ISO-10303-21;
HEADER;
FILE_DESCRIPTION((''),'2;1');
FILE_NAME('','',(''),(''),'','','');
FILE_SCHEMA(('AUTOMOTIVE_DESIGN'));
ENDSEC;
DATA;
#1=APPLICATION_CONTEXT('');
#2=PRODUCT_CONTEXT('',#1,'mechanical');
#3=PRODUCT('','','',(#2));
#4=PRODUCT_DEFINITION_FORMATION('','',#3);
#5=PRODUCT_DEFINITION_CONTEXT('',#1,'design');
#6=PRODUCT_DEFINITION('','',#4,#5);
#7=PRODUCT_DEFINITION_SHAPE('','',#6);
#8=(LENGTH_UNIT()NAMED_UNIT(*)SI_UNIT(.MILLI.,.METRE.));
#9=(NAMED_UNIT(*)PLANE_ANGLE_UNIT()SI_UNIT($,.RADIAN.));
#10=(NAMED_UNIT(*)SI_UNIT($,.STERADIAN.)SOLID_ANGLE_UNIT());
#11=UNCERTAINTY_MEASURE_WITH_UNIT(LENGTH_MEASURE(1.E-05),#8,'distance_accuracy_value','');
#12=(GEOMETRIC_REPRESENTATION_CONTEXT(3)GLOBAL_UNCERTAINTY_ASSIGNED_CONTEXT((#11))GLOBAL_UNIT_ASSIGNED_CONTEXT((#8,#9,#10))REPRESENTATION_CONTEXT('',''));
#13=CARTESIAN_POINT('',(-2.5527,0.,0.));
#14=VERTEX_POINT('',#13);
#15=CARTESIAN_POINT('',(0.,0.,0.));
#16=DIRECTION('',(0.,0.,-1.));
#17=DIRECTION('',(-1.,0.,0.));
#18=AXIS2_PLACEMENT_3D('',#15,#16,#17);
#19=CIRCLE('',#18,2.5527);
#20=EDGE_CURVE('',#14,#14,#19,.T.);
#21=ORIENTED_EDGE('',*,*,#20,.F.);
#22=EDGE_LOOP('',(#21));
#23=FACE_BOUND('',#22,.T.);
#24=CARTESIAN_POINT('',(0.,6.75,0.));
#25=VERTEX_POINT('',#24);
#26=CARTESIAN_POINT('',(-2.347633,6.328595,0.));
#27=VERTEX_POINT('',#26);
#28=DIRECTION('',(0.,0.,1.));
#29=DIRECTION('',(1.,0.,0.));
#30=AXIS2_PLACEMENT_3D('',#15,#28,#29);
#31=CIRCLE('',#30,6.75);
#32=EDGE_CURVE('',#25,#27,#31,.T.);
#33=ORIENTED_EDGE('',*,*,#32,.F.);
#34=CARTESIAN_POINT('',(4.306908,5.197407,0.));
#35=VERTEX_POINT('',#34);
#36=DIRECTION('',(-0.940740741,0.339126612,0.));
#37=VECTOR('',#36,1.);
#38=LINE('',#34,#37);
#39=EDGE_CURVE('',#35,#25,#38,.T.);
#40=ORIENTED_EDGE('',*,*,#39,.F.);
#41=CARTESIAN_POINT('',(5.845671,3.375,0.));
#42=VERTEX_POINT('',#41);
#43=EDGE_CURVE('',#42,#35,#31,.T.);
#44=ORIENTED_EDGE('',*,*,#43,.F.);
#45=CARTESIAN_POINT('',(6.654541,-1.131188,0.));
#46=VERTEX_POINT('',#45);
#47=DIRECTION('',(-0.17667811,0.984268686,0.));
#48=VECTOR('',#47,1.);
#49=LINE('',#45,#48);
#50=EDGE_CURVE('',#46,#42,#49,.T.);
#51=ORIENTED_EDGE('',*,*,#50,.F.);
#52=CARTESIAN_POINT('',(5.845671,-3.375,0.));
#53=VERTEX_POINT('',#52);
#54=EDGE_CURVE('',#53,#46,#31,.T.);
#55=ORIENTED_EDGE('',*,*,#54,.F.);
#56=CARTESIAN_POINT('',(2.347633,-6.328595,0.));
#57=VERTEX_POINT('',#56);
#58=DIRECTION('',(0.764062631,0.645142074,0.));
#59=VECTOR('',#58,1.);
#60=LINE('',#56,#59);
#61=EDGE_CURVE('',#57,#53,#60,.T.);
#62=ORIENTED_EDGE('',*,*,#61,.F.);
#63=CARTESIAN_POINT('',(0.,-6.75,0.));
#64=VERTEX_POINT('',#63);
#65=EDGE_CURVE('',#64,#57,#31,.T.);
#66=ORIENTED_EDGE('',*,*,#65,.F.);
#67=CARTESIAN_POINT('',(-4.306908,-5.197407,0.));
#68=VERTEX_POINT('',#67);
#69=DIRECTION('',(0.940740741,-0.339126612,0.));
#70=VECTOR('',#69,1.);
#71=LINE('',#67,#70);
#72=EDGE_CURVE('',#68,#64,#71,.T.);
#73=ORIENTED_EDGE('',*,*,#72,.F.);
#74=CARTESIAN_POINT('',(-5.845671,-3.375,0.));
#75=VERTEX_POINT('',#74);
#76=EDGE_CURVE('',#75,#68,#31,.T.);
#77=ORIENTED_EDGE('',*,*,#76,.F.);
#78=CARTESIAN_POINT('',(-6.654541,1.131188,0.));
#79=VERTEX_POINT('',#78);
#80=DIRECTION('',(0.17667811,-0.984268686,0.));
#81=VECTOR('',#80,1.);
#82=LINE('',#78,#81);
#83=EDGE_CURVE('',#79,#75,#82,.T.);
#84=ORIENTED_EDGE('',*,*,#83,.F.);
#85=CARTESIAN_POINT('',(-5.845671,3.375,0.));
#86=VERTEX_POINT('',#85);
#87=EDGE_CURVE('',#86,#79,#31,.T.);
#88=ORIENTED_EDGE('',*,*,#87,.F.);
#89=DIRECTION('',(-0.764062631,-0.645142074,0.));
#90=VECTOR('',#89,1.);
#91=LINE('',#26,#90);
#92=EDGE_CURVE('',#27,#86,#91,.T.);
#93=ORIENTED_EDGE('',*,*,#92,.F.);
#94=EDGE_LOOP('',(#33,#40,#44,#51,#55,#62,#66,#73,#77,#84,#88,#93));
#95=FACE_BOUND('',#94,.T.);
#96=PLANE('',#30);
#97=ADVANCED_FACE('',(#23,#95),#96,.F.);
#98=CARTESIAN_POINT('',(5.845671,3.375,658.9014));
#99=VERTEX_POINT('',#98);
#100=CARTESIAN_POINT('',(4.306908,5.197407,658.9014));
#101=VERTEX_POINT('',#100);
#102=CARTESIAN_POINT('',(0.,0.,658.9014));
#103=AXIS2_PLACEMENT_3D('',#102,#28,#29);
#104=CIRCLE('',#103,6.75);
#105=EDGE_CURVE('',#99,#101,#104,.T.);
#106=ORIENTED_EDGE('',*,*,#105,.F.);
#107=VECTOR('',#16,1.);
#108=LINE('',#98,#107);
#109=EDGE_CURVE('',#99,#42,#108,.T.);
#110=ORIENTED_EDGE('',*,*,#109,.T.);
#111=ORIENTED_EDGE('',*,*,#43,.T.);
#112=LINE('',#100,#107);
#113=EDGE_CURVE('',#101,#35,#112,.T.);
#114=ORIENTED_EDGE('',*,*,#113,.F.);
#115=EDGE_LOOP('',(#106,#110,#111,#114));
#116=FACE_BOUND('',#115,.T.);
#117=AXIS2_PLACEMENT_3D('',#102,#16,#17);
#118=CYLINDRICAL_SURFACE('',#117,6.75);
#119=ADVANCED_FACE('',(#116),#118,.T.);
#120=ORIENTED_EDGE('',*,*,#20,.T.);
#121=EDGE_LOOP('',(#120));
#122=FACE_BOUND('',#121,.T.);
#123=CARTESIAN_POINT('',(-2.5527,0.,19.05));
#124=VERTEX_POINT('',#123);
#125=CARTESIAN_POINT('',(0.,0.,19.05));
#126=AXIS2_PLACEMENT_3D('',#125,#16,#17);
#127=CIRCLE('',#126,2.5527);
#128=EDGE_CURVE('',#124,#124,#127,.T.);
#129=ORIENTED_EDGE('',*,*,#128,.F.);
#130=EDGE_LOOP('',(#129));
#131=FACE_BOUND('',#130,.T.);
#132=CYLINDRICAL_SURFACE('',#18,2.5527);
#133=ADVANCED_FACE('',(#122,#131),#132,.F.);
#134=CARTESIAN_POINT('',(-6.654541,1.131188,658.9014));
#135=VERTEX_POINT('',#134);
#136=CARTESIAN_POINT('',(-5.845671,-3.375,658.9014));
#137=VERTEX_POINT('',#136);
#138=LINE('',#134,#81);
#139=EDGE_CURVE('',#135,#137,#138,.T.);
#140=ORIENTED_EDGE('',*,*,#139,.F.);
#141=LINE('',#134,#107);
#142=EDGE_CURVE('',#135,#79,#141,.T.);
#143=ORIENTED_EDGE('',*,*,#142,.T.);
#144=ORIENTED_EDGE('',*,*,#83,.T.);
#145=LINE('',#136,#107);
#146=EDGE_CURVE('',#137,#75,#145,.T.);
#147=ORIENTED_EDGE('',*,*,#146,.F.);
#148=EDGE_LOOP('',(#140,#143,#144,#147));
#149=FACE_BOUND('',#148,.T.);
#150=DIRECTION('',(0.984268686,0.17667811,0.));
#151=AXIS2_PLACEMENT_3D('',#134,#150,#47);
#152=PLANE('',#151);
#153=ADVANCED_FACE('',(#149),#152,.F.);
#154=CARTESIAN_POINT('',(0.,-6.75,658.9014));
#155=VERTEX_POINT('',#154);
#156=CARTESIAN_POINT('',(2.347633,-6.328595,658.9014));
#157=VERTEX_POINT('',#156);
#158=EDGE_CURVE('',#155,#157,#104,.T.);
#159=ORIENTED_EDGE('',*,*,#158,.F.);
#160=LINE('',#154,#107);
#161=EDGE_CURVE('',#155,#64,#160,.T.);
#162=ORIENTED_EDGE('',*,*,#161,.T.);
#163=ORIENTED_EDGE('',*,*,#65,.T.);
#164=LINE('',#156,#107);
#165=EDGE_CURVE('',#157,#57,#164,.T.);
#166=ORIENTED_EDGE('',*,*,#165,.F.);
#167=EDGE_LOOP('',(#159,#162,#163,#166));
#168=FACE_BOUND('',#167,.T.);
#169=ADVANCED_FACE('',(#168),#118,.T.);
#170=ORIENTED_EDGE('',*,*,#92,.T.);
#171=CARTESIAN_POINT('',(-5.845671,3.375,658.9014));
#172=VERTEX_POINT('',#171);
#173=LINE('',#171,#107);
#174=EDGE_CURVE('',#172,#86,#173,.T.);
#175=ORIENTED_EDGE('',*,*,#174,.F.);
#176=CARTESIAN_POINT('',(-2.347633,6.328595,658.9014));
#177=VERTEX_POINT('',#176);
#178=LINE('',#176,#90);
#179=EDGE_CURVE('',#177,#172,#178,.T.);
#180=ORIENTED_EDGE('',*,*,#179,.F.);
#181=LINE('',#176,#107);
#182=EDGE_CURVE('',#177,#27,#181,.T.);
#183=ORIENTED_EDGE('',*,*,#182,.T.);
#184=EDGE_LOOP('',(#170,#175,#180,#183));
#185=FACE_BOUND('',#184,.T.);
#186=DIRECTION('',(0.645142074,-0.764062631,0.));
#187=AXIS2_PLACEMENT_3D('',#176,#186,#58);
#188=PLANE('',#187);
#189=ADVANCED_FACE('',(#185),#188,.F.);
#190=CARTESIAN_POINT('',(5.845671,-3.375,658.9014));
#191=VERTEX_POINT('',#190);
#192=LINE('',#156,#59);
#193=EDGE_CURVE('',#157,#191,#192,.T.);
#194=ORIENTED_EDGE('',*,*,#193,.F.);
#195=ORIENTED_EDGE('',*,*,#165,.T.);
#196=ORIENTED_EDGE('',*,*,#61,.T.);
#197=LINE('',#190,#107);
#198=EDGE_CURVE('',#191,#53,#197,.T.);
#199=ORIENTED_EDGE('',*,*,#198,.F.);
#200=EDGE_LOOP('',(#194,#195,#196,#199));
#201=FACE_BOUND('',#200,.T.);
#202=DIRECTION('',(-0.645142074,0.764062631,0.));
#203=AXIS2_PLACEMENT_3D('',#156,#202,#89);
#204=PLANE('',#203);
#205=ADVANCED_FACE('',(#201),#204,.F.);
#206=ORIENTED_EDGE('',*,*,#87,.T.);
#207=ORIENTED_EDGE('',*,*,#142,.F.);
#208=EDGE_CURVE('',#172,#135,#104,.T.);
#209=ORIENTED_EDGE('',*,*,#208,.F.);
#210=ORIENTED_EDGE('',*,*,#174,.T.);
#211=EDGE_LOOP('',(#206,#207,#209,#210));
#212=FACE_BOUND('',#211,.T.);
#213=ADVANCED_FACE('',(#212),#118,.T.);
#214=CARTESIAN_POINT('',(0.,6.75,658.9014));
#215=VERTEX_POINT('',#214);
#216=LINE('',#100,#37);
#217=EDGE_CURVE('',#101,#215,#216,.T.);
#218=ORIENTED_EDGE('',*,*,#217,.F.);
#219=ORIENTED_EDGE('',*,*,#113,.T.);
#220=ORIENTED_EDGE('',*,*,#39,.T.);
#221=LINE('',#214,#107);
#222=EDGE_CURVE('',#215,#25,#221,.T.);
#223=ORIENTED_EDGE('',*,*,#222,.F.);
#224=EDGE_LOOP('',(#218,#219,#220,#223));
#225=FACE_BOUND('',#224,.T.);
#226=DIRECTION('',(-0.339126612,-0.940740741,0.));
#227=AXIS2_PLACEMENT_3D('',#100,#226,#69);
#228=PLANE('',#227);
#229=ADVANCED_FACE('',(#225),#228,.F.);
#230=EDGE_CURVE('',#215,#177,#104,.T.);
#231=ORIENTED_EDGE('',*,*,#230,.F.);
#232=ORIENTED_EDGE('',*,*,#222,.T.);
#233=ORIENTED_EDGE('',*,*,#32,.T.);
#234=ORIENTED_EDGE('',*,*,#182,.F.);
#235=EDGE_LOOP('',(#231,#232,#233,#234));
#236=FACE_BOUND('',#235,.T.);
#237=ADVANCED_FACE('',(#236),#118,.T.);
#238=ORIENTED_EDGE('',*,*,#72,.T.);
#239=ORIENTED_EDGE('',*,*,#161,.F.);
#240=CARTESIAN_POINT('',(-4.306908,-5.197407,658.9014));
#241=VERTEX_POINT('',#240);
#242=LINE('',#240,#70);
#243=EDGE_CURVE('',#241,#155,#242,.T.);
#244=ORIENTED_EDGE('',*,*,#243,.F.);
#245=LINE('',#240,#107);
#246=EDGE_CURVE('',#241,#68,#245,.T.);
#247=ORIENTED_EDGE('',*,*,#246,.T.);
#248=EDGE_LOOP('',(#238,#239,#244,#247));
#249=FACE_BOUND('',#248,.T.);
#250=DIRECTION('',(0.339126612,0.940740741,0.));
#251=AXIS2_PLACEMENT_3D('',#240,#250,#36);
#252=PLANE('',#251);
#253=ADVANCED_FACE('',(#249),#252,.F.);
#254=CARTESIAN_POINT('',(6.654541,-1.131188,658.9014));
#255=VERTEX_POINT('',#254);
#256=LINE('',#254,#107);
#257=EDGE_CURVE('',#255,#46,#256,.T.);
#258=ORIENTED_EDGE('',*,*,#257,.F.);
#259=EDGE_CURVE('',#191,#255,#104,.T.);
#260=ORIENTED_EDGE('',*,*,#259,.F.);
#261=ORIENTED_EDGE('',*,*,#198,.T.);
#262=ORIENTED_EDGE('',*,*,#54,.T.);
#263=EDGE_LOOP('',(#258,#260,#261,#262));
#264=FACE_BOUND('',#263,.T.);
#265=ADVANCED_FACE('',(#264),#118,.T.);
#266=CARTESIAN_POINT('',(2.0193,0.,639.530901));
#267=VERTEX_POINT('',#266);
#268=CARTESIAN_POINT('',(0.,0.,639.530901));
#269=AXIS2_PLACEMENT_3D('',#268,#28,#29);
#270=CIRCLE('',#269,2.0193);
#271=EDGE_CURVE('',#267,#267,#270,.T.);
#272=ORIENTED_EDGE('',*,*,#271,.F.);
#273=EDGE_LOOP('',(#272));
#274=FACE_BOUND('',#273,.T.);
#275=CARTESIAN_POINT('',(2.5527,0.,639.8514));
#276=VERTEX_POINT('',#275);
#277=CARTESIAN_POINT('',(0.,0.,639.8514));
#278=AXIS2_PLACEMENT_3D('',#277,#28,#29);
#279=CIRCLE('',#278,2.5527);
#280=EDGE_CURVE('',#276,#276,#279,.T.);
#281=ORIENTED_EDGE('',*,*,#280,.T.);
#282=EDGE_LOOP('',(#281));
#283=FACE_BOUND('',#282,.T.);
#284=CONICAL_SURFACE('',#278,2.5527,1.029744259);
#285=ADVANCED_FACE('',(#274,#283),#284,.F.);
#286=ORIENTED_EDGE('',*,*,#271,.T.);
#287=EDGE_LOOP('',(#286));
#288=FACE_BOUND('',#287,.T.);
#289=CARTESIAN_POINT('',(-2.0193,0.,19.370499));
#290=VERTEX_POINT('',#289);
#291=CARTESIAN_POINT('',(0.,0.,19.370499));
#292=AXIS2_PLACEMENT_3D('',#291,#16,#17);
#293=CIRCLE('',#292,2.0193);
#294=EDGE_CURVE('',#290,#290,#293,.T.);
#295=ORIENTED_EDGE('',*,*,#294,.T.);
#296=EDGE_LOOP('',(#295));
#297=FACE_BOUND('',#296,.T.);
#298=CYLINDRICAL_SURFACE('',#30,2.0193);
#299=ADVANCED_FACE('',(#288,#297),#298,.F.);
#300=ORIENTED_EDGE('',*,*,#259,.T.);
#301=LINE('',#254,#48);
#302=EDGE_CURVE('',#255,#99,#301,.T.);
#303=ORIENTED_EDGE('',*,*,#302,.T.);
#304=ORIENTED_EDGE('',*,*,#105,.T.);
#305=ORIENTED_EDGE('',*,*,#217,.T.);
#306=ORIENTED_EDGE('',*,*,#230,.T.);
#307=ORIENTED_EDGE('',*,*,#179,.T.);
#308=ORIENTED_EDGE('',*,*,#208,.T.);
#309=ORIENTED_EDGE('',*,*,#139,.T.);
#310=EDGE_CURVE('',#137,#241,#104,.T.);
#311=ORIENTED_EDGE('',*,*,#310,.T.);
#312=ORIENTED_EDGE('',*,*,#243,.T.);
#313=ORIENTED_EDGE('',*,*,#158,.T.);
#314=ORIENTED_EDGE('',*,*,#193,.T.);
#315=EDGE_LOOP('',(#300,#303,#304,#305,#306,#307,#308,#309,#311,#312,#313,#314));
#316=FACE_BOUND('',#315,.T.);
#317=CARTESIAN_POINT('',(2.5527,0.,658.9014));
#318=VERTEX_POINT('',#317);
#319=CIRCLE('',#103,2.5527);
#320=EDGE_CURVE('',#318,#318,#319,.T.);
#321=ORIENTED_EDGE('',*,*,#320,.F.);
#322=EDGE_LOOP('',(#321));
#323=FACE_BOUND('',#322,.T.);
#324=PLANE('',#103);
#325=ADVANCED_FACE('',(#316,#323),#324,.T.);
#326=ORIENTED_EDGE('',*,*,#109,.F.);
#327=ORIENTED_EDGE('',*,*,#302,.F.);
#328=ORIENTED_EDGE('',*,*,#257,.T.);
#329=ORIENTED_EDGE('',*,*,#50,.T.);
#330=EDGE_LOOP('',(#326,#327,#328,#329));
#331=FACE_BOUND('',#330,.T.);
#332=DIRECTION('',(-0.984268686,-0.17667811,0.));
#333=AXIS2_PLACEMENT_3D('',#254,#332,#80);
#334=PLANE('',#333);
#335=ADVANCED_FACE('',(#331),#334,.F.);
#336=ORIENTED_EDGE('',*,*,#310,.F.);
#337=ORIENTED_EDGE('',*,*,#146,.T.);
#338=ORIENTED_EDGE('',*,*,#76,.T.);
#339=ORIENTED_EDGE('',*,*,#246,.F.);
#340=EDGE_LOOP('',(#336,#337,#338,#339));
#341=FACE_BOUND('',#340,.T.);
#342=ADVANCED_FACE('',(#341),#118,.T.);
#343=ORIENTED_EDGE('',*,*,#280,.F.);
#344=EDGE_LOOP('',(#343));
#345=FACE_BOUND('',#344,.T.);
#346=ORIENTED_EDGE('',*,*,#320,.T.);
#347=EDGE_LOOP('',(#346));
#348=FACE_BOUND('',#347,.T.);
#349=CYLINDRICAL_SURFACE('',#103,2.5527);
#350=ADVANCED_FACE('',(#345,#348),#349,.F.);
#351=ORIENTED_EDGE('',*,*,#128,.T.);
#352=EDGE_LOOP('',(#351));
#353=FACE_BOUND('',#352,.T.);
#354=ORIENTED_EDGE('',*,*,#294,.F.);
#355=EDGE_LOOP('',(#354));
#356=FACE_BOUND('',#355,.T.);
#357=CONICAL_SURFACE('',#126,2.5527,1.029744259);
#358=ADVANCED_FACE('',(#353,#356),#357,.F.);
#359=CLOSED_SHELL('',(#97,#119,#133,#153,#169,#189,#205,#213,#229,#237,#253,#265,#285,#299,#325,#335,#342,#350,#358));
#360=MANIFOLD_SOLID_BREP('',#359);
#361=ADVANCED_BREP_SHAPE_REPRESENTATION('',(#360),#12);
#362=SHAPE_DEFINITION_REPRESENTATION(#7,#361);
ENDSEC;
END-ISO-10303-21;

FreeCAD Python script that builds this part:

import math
import FreeCAD as App
import Part
import Sketcher

V = App.Vector
Q = App.Units.Quantity

doc = App.newDocument("Part")
body = doc.addObject("PartDesign::Body", "Body")

# Sketch on XY plane
sketch1 = body.newObject("Sketcher::SketchObject", "Sketch")
sketch1.AttachmentSupport = (doc.getObject("XY_Plane"), [""])
sketch1.MapMode = "FlatFace"
sketch1.addGeometry([
    Part.LineSegment(V(-6.7, 1.1, 0), V(-5.8, -3.4, 0)),  # 0
    Part.ArcOfCircle(Part.Circle(V(0, 0, 0), V(0, 0, 1), 6.8), math.radians(-150), math.radians(-130)),  # 1
    Part.LineSegment(V(-4.3, -5.2, 0), V(0, -6.8, 0)),  # 2
    Part.ArcOfCircle(Part.Circle(V(0, 0, 0), V(0, 0, 1), 6.8), math.radians(-90), math.radians(-70)),  # 3
    Part.LineSegment(V(2.3, -6.3, 0), V(5.8, -3.4, 0)),  # 4
    Part.ArcOfCircle(Part.Circle(V(0, 0, 0), V(0, 0, 1), 6.8), math.radians(-30), math.radians(-10)),  # 5
    Part.LineSegment(V(6.7, -1.1, 0), V(5.8, 3.4, 0)),  # 6
    Part.ArcOfCircle(Part.Circle(V(0, 0, 0), V(0, 0, 1), 6.8), math.radians(30), math.radians(50)),  # 7
    Part.LineSegment(V(4.3, 5.2, 0), V(0, 6.8, 0)),  # 8
    Part.ArcOfCircle(Part.Circle(V(0, 0, 0), V(0, 0, 1), 6.8), math.radians(90), math.radians(110)),  # 9
    Part.LineSegment(V(-2.3, 6.3, 0), V(-5.8, 3.4, 0)),  # 10
    Part.ArcOfCircle(Part.Circle(V(0, 0, 0), V(0, 0, 1), 6.8), math.radians(150), math.radians(170)),  # 11
], False)
sketch1.addConstraint([
    Sketcher.Constraint("Coincident", 0, 2, 1, 1),
    Sketcher.Constraint("Coincident", 1, 2, 2, 1),
    Sketcher.Constraint("Coincident", 2, 2, 3, 1),
    Sketcher.Constraint("Coincident", 3, 2, 4, 1),
    Sketcher.Constraint("Coincident", 4, 2, 5, 1),
    Sketcher.Constraint("Coincident", 5, 2, 6, 1),
    Sketcher.Constraint("Coincident", 6, 2, 7, 1),
    Sketcher.Constraint("Coincident", 7, 2, 8, 1),
    Sketcher.Constraint("Coincident", 8, 2, 9, 1),
    Sketcher.Constraint("Coincident", 9, 2, 10, 1),
    Sketcher.Constraint("Coincident", 10, 2, 11, 1),
    Sketcher.Constraint("Coincident", 11, 2, 0, 1),
    Sketcher.Constraint("Coincident", 1, 3, -1, 1),
    Sketcher.Constraint("Coincident", 3, 3, -1, 1),
    Sketcher.Constraint("Coincident", 5, 3, -1, 1),
    Sketcher.Constraint("Coincident", 7, 3, -1, 1),
    Sketcher.Constraint("Coincident", 9, 3, -1, 1),
    Sketcher.Constraint("Coincident", 11, 3, -1, 1),
    Sketcher.Constraint("Equal", 1, 3),
    Sketcher.Constraint("Equal", 3, 5),
    Sketcher.Constraint("Equal", 5, 7),
    Sketcher.Constraint("Equal", 7, 9),
    Sketcher.Constraint("Equal", 9, 11),
    Sketcher.Constraint("PointOnObject", 2, 2, -2),
    Sketcher.Constraint("PointOnObject", 8, 2, -2),
    Sketcher.Constraint("Parallel", 0, 6),
    Sketcher.Constraint("Parallel", 2, 8),
    Sketcher.Constraint("Parallel", 4, 10),
    Sketcher.Constraint("Horizontal", 0, 2, 4, 2),
    Sketcher.Constraint("Horizontal", 6, 2, 10, 2),
    Sketcher.Constraint("Vertical", 4, 2, 6, 2),
    Sketcher.Constraint("Equal", 0, 2),
    Sketcher.Constraint("Equal", 2, 4),
    Sketcher.Constraint("Radius", 1, 6.75),
    Sketcher.Constraint("DistanceY", 0, 2, -1, 1, 3.375),
    Sketcher.Constraint("Distance", 0, 4.578209),
])
pad1 = body.newObject("PartDesign::Pad", "Pad")
pad1.Profile = sketch1
pad1.Length = Q("25.941 in")

# Sketch on XY plane
sketch2 = body.newObject("Sketcher::SketchObject", "Sketch001")
sketch2.AttachmentSupport = (doc.getObject("XY_Plane"), [""])
sketch2.MapMode = "FlatFace"
sketch2.AttachmentOffset = App.Placement(V(0, 0, 25.941 * 25.4), App.Rotation())
sketch2.addGeometry(Part.Circle(V(0, 0, 0), V(0, 0, 1), 2), False)
sketch2.addConstraint([
    Sketcher.Constraint("Coincident", 0, 3, -1, 1),
    Sketcher.Constraint("Diameter", 0, Q("0.159 in")),
])
pocket1 = body.newObject("PartDesign::Pocket", "Pocket")
pocket1.Profile = sketch2
pocket1.Type = "ThroughAll"

# Sketch on XY plane
sketch3 = body.newObject("Sketcher::SketchObject", "Sketch002")
sketch3.AttachmentSupport = (doc.getObject("XY_Plane"), [""])
sketch3.MapMode = "FlatFace"
sketch3.AttachmentOffset = App.Placement(V(0, 0, 25.941 * 25.4), App.Rotation())
sketch3.addGeometry(Part.Circle(V(0, 0, 0), V(0, 0, 1), 2.6), False)
sketch3.addConstraint([
    Sketcher.Constraint("Coincident", 0, 3, -1, 1),
    Sketcher.Constraint("Diameter", 0, Q("0.201 in")),
])
doc.recompute()
hole = body.newObject("PartDesign::Hole", "Hole")
hole.Profile = sketch3
hole.ThreadType = "None"
hole.Diameter = Q("0.201 in")
hole.DepthType = "Dimension"
hole.Depth = Q("0.75 in")
hole.DrillPoint = "Angled"
hole.DrillPointAngle = 118

# Sketch on XY plane
sketch4 = body.newObject("Sketcher::SketchObject", "Sketch003")
sketch4.AttachmentSupport = (doc.getObject("XY_Plane"), [""])
sketch4.MapMode = "FlatFace"
sketch4.addGeometry(Part.Circle(V(0, 0, 0), V(0, 0, 1), 2.6), False)
sketch4.addConstraint([
    Sketcher.Constraint("Coincident", 0, 3, -1, 1),
    Sketcher.Constraint("Diameter", 0, Q("0.201 in")),
])
doc.recompute()
hole2 = body.newObject("PartDesign::Hole", "Hole001")
hole2.Profile = sketch4
hole2.ThreadType = "None"
hole2.Diameter = Q("0.201 in")
hole2.DepthType = "Dimension"
hole2.Depth = Q("0.75 in")
hole2.DrillPoint = "Angled"
hole2.DrillPointAngle = 118
hole2.Reversed = True

doc.recompute()
